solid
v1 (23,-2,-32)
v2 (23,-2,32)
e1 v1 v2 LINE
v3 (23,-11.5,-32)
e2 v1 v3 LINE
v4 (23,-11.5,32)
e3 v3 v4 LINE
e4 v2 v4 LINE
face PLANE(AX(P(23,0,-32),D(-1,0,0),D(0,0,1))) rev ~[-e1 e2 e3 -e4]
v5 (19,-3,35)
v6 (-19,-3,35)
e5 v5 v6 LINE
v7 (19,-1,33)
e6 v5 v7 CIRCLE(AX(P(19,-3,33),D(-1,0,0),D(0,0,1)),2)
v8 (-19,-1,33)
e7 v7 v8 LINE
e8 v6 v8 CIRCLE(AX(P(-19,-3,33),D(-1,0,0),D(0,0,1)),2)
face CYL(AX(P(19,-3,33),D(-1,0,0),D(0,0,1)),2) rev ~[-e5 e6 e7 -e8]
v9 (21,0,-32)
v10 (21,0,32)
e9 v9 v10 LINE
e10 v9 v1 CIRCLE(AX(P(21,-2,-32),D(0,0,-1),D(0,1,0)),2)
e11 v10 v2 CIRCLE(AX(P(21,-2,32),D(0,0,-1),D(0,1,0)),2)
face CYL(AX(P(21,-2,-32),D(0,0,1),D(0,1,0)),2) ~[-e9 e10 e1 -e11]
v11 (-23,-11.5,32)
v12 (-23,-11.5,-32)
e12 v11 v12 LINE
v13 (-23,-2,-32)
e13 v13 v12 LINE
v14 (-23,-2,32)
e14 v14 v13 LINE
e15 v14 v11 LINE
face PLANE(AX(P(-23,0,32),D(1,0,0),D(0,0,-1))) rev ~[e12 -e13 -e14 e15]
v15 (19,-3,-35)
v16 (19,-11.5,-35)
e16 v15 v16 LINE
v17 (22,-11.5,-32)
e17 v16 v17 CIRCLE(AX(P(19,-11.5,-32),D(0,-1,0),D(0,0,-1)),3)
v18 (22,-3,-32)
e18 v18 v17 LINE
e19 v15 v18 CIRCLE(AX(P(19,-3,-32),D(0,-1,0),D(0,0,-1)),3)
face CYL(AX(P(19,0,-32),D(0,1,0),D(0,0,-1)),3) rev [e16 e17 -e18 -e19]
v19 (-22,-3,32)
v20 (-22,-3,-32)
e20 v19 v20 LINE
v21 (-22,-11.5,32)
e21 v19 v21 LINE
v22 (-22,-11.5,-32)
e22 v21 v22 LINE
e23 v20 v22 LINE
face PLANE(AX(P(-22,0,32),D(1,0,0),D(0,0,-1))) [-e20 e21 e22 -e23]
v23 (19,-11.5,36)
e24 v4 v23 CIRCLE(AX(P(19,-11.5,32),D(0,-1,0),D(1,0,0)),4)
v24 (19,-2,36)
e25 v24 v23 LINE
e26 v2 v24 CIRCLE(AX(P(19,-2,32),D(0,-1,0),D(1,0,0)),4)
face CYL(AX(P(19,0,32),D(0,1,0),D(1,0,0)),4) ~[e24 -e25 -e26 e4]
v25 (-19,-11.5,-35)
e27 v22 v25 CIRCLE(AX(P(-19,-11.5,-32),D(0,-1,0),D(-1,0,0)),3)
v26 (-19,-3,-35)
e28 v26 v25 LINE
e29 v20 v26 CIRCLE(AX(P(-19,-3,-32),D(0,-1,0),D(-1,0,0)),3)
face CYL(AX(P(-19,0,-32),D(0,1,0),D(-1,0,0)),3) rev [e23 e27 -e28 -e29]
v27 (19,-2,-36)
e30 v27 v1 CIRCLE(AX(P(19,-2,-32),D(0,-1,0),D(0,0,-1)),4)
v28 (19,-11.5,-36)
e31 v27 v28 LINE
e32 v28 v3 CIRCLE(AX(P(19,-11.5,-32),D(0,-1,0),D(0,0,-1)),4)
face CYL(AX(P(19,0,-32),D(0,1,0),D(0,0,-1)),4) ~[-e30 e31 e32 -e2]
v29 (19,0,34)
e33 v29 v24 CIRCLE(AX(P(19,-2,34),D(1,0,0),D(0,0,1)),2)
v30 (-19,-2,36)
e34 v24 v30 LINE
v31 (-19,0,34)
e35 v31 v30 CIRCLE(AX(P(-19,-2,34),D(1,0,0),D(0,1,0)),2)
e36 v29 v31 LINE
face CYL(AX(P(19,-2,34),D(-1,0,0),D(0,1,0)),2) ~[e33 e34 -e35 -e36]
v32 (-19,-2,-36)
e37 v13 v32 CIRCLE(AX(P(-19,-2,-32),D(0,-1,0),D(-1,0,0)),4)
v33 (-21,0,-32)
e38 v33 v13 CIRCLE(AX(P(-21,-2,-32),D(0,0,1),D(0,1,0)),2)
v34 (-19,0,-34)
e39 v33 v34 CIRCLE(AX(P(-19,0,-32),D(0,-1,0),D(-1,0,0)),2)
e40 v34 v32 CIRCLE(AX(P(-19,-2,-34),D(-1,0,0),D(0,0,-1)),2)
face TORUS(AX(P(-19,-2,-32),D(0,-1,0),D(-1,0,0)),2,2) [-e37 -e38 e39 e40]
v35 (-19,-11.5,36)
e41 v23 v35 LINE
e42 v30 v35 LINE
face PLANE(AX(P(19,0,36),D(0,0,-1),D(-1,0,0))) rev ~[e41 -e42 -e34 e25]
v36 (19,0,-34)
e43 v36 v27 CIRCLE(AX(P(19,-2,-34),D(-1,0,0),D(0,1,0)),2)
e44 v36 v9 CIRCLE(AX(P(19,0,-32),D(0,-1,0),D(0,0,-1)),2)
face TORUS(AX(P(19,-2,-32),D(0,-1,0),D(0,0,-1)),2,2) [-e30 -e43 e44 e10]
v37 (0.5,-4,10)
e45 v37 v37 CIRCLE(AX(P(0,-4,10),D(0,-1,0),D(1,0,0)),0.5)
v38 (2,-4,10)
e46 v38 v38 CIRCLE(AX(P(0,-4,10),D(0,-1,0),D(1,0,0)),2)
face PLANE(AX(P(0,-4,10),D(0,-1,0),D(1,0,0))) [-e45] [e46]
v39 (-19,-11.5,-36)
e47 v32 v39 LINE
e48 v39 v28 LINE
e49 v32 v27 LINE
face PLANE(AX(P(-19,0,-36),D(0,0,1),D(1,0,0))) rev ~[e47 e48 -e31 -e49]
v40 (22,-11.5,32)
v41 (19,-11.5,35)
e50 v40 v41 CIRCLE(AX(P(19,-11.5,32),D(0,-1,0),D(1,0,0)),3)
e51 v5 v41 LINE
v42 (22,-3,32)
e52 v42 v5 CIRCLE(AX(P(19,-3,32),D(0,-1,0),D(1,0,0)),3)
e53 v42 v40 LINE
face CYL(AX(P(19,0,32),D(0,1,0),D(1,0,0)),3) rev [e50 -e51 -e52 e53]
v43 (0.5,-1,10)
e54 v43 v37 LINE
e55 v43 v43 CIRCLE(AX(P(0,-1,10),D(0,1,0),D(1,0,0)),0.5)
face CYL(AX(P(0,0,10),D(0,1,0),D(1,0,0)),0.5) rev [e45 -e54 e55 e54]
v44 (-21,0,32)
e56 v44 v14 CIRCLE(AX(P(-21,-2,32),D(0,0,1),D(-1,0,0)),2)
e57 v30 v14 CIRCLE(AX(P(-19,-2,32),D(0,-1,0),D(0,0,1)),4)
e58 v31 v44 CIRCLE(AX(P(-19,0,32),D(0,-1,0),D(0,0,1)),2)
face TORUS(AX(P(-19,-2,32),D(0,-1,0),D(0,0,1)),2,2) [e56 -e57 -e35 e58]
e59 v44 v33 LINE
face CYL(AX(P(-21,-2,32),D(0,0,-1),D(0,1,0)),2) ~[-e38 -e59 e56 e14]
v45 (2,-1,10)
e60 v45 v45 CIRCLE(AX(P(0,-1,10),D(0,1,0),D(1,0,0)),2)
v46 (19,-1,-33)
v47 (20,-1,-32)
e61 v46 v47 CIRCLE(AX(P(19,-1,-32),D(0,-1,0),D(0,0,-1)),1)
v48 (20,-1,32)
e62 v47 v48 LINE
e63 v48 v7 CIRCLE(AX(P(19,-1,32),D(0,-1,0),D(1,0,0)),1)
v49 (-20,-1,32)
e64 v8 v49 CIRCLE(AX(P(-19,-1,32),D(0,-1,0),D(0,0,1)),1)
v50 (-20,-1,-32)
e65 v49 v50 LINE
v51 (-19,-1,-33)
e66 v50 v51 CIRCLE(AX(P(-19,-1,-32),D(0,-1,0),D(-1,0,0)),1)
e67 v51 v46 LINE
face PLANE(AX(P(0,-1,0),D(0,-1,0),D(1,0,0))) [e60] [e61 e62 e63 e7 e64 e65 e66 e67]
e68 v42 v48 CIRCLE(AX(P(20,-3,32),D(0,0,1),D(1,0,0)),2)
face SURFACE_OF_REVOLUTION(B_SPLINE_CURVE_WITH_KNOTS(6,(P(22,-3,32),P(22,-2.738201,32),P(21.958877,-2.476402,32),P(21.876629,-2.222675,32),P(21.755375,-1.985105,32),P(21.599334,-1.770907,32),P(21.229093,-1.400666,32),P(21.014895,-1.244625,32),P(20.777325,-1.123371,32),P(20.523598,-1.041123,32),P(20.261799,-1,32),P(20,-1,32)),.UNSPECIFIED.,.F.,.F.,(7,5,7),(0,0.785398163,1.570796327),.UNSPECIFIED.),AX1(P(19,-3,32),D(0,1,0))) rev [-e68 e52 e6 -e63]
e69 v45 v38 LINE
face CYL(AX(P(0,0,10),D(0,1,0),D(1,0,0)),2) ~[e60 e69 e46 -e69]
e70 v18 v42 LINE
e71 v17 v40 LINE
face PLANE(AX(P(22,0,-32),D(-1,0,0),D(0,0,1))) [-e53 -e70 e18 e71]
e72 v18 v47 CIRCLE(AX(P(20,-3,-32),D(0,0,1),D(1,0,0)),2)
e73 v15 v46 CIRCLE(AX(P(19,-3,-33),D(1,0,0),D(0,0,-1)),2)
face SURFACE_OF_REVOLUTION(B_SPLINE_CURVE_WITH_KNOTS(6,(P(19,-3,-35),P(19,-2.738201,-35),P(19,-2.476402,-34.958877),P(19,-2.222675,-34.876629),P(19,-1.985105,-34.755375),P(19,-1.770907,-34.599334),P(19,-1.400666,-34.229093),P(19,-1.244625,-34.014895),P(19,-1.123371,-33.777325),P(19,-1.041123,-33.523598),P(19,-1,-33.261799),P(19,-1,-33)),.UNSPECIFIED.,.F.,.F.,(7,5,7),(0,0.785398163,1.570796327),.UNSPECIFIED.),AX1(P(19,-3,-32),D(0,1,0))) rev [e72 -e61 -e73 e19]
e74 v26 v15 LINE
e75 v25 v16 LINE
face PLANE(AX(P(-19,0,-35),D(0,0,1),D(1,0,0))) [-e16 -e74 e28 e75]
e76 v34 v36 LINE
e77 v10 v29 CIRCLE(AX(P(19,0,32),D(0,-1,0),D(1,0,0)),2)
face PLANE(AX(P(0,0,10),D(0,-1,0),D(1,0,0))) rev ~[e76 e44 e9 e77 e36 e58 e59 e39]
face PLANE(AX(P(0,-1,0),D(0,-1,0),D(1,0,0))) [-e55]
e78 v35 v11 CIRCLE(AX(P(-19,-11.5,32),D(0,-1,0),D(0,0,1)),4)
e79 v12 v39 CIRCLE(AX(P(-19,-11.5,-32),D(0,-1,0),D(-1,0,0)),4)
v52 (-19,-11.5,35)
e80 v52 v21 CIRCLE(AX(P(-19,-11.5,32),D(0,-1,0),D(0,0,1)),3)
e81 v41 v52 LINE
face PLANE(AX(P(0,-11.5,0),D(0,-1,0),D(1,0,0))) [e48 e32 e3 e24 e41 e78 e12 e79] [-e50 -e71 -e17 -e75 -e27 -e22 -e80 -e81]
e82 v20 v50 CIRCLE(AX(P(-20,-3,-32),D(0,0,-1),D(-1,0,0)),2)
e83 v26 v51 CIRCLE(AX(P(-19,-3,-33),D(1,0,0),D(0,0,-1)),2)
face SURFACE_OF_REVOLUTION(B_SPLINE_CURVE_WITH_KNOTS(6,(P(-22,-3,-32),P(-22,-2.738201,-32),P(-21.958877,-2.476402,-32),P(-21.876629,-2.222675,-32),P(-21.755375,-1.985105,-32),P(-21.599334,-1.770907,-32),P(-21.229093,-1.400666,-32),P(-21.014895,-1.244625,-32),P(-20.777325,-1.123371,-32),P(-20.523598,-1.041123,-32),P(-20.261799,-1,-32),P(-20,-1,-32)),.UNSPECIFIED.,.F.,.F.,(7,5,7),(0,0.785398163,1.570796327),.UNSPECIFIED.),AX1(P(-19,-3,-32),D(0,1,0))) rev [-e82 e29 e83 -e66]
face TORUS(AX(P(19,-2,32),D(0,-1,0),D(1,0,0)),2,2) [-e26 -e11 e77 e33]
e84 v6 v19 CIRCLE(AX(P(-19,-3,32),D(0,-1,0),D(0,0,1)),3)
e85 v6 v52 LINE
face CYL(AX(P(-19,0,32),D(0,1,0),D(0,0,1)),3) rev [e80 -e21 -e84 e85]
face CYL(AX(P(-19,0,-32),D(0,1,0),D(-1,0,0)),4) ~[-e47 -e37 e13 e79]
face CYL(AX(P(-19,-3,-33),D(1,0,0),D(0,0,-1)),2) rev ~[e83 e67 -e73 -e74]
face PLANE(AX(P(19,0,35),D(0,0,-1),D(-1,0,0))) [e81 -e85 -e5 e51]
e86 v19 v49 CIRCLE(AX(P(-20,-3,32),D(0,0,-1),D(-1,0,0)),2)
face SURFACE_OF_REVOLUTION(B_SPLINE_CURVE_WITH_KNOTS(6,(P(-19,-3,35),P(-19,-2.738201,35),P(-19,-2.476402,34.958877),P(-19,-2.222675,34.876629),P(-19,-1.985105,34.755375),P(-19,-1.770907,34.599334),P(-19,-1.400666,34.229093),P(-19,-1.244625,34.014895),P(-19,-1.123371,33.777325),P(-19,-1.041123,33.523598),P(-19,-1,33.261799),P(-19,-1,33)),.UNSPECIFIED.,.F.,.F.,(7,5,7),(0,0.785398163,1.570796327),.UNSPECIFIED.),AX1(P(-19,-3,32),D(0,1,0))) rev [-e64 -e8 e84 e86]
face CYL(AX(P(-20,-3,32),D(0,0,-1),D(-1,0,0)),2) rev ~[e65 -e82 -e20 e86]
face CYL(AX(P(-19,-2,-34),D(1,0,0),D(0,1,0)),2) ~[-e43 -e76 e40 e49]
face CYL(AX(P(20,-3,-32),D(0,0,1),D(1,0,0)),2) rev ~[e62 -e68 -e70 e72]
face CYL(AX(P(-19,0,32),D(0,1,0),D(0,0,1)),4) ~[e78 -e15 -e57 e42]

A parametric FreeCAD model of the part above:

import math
import FreeCAD as App
import Part
import Sketcher
from FreeCAD import Vector
Q = App.Units.Quantity


def edges_at(feature, points):
    """Names of the edges that pass closest to the given points."""
    edges = feature.Shape.Edges
    near = lambda p: min(range(len(edges)), key=lambda i: edges[i].distToShape(Part.Vertex(*p))[0])
    return sorted({f"Edge{near(p) + 1}" for p in points})


def faces_at(feature, points):
    """Names of the faces that lie closest to the given points."""
    faces = feature.Shape.Faces
    near = lambda p: min(range(len(faces)), key=lambda i: faces[i].distToShape(Part.Vertex(*p))[0])
    return sorted({f"Face{near(p) + 1}" for p in points})

doc = App.newDocument("Part")
body = doc.addObject("PartDesign::Body", "Body")

sketch1 = doc.addObject("Sketcher::SketchObject", "Sketch")
body.addObject(sketch1)
sketch1.AttachmentSupport = (doc.XZ_Plane, [""])
sketch1.MapMode = "FlatFace"
sketch1.addGeometry(Part.LineSegment(Vector(19, 36, 0), Vector(-19, 36, 0)), False)
sketch1.addGeometry(Part.ArcOfCircle(Part.Circle(Vector(-19, 32, 0), Vector(0, 0, 1), 4), math.radians(90), math.radians(180)), False)
sketch1.addGeometry(Part.LineSegment(Vector(-23, 32, 0), Vector(-23, -32, 0)), False)
sketch1.addGeometry(Part.ArcOfCircle(Part.Circle(Vector(-19, -32, 0), Vector(0, 0, 1), 4), math.radians(180), math.radians(270)), False)
sketch1.addGeometry(Part.LineSegment(Vector(-19, -36, 0), Vector(19, -36, 0)), False)
sketch1.addGeometry(Part.ArcOfCircle(Part.Circle(Vector(19, -32, 0), Vector(0, 0, 1), 4), math.radians(-90), math.radians(0)), False)
sketch1.addGeometry(Part.LineSegment(Vector(23, -32, 0), Vector(23, 32, 0)), False)
sketch1.addGeometry(Part.ArcOfCircle(Part.Circle(Vector(19, 32, 0), Vector(0, 0, 1), 4), math.radians(0), math.radians(90)), False)
sketch1.addConstraint(Sketcher.Constraint("Tangent", 0, 2, 1, 1))
sketch1.addConstraint(Sketcher.Constraint("Tangent", 1, 2, 2, 1))
sketch1.addConstraint(Sketcher.Constraint("Tangent", 2, 2, 3, 1))
sketch1.addConstraint(Sketcher.Constraint("Tangent", 3, 2, 4, 1))
sketch1.addConstraint(Sketcher.Constraint("Tangent", 4, 2, 5, 1))
sketch1.addConstraint(Sketcher.Constraint("Tangent", 5, 2, 6, 1))
sketch1.addConstraint(Sketcher.Constraint("Tangent", 6, 2, 7, 1))
sketch1.addConstraint(Sketcher.Constraint("Tangent", 7, 2, 0, 1))
sketch1.addConstraint(Sketcher.Constraint("Horizontal", 0))
sketch1.addConstraint(Sketcher.Constraint("Vertical", 2))
sketch1.addConstraint(Sketcher.Constraint("Horizontal", 4))
sketch1.addConstraint(Sketcher.Constraint("Vertical", 6))
sketch1.addConstraint(Sketcher.Constraint("Equal", 1, 3))
sketch1.addConstraint(Sketcher.Constraint("Equal", 3, 5))
sketch1.addConstraint(Sketcher.Constraint("Equal", 5, 7))
sketch1.addConstraint(Sketcher.Constraint("Symmetric", 1, 3, 5, 3, -1, 1))
sketch1.addConstraint(Sketcher.Constraint("Radius", 1, Q("4 mm")))
sketch1.addConstraint(Sketcher.Constraint("DistanceX", 0, 2, 0, 1, Q("38 mm")))
sketch1.addConstraint(Sketcher.Constraint("DistanceY", 2, 2, 2, 1, Q("64 mm")))
pad1 = doc.addObject("PartDesign::Pad", "Pad")
body.addObject(pad1)
pad1.Profile = sketch1
pad1.Length = 11.5
doc.recompute()

thickness = doc.addObject("PartDesign::Thickness", "Thickness")
body.addObject(thickness)
thickness.Base = (pad1, faces_at(pad1, [(0, -11.5, 0)]))
thickness.Value = 1
thickness.Reversed = True
thickness.Join = "Arc"

sketch2 = doc.addObject("Sketcher::SketchObject", "Sketch001")
body.addObject(sketch2)
sketch2.AttachmentSupport = (doc.XZ_Plane, [""])
sketch2.MapMode = "FlatFace"
sketch2.addGeometry(Part.Circle(Vector(0, 10, 0), Vector(0, 0, 1), 2), False)
sketch2.addGeometry(Part.Circle(Vector(0, 10, 0), Vector(0, 0, 1), 0.5), False)
sketch2.addConstraint(Sketcher.Constraint("Coincident", 1, 3, 0, 3))
sketch2.addConstraint(Sketcher.Constraint("PointOnObject", 0, 3, -2))
sketch2.addConstraint(Sketcher.Constraint("Diameter", 0, Q("4 mm")))
sketch2.addConstraint(Sketcher.Constraint("Diameter", 1, Q("1 mm")))
sketch2.addConstraint(Sketcher.Constraint("DistanceY", -1, 1, 0, 3, Q("10 mm")))
pad2 = doc.addObject("PartDesign::Pad", "Pad001")
body.addObject(pad2)
pad2.Profile = sketch2
pad2.Length = 4
doc.recompute()

fillet = doc.addObject("PartDesign::Fillet", "Fillet")
body.addObject(fillet)
fillet.Base = (pad2, edges_at(pad2, [(23, 0, 0), (-22, -1, 0)]))
fillet.Radius = 2

doc.recompute()
